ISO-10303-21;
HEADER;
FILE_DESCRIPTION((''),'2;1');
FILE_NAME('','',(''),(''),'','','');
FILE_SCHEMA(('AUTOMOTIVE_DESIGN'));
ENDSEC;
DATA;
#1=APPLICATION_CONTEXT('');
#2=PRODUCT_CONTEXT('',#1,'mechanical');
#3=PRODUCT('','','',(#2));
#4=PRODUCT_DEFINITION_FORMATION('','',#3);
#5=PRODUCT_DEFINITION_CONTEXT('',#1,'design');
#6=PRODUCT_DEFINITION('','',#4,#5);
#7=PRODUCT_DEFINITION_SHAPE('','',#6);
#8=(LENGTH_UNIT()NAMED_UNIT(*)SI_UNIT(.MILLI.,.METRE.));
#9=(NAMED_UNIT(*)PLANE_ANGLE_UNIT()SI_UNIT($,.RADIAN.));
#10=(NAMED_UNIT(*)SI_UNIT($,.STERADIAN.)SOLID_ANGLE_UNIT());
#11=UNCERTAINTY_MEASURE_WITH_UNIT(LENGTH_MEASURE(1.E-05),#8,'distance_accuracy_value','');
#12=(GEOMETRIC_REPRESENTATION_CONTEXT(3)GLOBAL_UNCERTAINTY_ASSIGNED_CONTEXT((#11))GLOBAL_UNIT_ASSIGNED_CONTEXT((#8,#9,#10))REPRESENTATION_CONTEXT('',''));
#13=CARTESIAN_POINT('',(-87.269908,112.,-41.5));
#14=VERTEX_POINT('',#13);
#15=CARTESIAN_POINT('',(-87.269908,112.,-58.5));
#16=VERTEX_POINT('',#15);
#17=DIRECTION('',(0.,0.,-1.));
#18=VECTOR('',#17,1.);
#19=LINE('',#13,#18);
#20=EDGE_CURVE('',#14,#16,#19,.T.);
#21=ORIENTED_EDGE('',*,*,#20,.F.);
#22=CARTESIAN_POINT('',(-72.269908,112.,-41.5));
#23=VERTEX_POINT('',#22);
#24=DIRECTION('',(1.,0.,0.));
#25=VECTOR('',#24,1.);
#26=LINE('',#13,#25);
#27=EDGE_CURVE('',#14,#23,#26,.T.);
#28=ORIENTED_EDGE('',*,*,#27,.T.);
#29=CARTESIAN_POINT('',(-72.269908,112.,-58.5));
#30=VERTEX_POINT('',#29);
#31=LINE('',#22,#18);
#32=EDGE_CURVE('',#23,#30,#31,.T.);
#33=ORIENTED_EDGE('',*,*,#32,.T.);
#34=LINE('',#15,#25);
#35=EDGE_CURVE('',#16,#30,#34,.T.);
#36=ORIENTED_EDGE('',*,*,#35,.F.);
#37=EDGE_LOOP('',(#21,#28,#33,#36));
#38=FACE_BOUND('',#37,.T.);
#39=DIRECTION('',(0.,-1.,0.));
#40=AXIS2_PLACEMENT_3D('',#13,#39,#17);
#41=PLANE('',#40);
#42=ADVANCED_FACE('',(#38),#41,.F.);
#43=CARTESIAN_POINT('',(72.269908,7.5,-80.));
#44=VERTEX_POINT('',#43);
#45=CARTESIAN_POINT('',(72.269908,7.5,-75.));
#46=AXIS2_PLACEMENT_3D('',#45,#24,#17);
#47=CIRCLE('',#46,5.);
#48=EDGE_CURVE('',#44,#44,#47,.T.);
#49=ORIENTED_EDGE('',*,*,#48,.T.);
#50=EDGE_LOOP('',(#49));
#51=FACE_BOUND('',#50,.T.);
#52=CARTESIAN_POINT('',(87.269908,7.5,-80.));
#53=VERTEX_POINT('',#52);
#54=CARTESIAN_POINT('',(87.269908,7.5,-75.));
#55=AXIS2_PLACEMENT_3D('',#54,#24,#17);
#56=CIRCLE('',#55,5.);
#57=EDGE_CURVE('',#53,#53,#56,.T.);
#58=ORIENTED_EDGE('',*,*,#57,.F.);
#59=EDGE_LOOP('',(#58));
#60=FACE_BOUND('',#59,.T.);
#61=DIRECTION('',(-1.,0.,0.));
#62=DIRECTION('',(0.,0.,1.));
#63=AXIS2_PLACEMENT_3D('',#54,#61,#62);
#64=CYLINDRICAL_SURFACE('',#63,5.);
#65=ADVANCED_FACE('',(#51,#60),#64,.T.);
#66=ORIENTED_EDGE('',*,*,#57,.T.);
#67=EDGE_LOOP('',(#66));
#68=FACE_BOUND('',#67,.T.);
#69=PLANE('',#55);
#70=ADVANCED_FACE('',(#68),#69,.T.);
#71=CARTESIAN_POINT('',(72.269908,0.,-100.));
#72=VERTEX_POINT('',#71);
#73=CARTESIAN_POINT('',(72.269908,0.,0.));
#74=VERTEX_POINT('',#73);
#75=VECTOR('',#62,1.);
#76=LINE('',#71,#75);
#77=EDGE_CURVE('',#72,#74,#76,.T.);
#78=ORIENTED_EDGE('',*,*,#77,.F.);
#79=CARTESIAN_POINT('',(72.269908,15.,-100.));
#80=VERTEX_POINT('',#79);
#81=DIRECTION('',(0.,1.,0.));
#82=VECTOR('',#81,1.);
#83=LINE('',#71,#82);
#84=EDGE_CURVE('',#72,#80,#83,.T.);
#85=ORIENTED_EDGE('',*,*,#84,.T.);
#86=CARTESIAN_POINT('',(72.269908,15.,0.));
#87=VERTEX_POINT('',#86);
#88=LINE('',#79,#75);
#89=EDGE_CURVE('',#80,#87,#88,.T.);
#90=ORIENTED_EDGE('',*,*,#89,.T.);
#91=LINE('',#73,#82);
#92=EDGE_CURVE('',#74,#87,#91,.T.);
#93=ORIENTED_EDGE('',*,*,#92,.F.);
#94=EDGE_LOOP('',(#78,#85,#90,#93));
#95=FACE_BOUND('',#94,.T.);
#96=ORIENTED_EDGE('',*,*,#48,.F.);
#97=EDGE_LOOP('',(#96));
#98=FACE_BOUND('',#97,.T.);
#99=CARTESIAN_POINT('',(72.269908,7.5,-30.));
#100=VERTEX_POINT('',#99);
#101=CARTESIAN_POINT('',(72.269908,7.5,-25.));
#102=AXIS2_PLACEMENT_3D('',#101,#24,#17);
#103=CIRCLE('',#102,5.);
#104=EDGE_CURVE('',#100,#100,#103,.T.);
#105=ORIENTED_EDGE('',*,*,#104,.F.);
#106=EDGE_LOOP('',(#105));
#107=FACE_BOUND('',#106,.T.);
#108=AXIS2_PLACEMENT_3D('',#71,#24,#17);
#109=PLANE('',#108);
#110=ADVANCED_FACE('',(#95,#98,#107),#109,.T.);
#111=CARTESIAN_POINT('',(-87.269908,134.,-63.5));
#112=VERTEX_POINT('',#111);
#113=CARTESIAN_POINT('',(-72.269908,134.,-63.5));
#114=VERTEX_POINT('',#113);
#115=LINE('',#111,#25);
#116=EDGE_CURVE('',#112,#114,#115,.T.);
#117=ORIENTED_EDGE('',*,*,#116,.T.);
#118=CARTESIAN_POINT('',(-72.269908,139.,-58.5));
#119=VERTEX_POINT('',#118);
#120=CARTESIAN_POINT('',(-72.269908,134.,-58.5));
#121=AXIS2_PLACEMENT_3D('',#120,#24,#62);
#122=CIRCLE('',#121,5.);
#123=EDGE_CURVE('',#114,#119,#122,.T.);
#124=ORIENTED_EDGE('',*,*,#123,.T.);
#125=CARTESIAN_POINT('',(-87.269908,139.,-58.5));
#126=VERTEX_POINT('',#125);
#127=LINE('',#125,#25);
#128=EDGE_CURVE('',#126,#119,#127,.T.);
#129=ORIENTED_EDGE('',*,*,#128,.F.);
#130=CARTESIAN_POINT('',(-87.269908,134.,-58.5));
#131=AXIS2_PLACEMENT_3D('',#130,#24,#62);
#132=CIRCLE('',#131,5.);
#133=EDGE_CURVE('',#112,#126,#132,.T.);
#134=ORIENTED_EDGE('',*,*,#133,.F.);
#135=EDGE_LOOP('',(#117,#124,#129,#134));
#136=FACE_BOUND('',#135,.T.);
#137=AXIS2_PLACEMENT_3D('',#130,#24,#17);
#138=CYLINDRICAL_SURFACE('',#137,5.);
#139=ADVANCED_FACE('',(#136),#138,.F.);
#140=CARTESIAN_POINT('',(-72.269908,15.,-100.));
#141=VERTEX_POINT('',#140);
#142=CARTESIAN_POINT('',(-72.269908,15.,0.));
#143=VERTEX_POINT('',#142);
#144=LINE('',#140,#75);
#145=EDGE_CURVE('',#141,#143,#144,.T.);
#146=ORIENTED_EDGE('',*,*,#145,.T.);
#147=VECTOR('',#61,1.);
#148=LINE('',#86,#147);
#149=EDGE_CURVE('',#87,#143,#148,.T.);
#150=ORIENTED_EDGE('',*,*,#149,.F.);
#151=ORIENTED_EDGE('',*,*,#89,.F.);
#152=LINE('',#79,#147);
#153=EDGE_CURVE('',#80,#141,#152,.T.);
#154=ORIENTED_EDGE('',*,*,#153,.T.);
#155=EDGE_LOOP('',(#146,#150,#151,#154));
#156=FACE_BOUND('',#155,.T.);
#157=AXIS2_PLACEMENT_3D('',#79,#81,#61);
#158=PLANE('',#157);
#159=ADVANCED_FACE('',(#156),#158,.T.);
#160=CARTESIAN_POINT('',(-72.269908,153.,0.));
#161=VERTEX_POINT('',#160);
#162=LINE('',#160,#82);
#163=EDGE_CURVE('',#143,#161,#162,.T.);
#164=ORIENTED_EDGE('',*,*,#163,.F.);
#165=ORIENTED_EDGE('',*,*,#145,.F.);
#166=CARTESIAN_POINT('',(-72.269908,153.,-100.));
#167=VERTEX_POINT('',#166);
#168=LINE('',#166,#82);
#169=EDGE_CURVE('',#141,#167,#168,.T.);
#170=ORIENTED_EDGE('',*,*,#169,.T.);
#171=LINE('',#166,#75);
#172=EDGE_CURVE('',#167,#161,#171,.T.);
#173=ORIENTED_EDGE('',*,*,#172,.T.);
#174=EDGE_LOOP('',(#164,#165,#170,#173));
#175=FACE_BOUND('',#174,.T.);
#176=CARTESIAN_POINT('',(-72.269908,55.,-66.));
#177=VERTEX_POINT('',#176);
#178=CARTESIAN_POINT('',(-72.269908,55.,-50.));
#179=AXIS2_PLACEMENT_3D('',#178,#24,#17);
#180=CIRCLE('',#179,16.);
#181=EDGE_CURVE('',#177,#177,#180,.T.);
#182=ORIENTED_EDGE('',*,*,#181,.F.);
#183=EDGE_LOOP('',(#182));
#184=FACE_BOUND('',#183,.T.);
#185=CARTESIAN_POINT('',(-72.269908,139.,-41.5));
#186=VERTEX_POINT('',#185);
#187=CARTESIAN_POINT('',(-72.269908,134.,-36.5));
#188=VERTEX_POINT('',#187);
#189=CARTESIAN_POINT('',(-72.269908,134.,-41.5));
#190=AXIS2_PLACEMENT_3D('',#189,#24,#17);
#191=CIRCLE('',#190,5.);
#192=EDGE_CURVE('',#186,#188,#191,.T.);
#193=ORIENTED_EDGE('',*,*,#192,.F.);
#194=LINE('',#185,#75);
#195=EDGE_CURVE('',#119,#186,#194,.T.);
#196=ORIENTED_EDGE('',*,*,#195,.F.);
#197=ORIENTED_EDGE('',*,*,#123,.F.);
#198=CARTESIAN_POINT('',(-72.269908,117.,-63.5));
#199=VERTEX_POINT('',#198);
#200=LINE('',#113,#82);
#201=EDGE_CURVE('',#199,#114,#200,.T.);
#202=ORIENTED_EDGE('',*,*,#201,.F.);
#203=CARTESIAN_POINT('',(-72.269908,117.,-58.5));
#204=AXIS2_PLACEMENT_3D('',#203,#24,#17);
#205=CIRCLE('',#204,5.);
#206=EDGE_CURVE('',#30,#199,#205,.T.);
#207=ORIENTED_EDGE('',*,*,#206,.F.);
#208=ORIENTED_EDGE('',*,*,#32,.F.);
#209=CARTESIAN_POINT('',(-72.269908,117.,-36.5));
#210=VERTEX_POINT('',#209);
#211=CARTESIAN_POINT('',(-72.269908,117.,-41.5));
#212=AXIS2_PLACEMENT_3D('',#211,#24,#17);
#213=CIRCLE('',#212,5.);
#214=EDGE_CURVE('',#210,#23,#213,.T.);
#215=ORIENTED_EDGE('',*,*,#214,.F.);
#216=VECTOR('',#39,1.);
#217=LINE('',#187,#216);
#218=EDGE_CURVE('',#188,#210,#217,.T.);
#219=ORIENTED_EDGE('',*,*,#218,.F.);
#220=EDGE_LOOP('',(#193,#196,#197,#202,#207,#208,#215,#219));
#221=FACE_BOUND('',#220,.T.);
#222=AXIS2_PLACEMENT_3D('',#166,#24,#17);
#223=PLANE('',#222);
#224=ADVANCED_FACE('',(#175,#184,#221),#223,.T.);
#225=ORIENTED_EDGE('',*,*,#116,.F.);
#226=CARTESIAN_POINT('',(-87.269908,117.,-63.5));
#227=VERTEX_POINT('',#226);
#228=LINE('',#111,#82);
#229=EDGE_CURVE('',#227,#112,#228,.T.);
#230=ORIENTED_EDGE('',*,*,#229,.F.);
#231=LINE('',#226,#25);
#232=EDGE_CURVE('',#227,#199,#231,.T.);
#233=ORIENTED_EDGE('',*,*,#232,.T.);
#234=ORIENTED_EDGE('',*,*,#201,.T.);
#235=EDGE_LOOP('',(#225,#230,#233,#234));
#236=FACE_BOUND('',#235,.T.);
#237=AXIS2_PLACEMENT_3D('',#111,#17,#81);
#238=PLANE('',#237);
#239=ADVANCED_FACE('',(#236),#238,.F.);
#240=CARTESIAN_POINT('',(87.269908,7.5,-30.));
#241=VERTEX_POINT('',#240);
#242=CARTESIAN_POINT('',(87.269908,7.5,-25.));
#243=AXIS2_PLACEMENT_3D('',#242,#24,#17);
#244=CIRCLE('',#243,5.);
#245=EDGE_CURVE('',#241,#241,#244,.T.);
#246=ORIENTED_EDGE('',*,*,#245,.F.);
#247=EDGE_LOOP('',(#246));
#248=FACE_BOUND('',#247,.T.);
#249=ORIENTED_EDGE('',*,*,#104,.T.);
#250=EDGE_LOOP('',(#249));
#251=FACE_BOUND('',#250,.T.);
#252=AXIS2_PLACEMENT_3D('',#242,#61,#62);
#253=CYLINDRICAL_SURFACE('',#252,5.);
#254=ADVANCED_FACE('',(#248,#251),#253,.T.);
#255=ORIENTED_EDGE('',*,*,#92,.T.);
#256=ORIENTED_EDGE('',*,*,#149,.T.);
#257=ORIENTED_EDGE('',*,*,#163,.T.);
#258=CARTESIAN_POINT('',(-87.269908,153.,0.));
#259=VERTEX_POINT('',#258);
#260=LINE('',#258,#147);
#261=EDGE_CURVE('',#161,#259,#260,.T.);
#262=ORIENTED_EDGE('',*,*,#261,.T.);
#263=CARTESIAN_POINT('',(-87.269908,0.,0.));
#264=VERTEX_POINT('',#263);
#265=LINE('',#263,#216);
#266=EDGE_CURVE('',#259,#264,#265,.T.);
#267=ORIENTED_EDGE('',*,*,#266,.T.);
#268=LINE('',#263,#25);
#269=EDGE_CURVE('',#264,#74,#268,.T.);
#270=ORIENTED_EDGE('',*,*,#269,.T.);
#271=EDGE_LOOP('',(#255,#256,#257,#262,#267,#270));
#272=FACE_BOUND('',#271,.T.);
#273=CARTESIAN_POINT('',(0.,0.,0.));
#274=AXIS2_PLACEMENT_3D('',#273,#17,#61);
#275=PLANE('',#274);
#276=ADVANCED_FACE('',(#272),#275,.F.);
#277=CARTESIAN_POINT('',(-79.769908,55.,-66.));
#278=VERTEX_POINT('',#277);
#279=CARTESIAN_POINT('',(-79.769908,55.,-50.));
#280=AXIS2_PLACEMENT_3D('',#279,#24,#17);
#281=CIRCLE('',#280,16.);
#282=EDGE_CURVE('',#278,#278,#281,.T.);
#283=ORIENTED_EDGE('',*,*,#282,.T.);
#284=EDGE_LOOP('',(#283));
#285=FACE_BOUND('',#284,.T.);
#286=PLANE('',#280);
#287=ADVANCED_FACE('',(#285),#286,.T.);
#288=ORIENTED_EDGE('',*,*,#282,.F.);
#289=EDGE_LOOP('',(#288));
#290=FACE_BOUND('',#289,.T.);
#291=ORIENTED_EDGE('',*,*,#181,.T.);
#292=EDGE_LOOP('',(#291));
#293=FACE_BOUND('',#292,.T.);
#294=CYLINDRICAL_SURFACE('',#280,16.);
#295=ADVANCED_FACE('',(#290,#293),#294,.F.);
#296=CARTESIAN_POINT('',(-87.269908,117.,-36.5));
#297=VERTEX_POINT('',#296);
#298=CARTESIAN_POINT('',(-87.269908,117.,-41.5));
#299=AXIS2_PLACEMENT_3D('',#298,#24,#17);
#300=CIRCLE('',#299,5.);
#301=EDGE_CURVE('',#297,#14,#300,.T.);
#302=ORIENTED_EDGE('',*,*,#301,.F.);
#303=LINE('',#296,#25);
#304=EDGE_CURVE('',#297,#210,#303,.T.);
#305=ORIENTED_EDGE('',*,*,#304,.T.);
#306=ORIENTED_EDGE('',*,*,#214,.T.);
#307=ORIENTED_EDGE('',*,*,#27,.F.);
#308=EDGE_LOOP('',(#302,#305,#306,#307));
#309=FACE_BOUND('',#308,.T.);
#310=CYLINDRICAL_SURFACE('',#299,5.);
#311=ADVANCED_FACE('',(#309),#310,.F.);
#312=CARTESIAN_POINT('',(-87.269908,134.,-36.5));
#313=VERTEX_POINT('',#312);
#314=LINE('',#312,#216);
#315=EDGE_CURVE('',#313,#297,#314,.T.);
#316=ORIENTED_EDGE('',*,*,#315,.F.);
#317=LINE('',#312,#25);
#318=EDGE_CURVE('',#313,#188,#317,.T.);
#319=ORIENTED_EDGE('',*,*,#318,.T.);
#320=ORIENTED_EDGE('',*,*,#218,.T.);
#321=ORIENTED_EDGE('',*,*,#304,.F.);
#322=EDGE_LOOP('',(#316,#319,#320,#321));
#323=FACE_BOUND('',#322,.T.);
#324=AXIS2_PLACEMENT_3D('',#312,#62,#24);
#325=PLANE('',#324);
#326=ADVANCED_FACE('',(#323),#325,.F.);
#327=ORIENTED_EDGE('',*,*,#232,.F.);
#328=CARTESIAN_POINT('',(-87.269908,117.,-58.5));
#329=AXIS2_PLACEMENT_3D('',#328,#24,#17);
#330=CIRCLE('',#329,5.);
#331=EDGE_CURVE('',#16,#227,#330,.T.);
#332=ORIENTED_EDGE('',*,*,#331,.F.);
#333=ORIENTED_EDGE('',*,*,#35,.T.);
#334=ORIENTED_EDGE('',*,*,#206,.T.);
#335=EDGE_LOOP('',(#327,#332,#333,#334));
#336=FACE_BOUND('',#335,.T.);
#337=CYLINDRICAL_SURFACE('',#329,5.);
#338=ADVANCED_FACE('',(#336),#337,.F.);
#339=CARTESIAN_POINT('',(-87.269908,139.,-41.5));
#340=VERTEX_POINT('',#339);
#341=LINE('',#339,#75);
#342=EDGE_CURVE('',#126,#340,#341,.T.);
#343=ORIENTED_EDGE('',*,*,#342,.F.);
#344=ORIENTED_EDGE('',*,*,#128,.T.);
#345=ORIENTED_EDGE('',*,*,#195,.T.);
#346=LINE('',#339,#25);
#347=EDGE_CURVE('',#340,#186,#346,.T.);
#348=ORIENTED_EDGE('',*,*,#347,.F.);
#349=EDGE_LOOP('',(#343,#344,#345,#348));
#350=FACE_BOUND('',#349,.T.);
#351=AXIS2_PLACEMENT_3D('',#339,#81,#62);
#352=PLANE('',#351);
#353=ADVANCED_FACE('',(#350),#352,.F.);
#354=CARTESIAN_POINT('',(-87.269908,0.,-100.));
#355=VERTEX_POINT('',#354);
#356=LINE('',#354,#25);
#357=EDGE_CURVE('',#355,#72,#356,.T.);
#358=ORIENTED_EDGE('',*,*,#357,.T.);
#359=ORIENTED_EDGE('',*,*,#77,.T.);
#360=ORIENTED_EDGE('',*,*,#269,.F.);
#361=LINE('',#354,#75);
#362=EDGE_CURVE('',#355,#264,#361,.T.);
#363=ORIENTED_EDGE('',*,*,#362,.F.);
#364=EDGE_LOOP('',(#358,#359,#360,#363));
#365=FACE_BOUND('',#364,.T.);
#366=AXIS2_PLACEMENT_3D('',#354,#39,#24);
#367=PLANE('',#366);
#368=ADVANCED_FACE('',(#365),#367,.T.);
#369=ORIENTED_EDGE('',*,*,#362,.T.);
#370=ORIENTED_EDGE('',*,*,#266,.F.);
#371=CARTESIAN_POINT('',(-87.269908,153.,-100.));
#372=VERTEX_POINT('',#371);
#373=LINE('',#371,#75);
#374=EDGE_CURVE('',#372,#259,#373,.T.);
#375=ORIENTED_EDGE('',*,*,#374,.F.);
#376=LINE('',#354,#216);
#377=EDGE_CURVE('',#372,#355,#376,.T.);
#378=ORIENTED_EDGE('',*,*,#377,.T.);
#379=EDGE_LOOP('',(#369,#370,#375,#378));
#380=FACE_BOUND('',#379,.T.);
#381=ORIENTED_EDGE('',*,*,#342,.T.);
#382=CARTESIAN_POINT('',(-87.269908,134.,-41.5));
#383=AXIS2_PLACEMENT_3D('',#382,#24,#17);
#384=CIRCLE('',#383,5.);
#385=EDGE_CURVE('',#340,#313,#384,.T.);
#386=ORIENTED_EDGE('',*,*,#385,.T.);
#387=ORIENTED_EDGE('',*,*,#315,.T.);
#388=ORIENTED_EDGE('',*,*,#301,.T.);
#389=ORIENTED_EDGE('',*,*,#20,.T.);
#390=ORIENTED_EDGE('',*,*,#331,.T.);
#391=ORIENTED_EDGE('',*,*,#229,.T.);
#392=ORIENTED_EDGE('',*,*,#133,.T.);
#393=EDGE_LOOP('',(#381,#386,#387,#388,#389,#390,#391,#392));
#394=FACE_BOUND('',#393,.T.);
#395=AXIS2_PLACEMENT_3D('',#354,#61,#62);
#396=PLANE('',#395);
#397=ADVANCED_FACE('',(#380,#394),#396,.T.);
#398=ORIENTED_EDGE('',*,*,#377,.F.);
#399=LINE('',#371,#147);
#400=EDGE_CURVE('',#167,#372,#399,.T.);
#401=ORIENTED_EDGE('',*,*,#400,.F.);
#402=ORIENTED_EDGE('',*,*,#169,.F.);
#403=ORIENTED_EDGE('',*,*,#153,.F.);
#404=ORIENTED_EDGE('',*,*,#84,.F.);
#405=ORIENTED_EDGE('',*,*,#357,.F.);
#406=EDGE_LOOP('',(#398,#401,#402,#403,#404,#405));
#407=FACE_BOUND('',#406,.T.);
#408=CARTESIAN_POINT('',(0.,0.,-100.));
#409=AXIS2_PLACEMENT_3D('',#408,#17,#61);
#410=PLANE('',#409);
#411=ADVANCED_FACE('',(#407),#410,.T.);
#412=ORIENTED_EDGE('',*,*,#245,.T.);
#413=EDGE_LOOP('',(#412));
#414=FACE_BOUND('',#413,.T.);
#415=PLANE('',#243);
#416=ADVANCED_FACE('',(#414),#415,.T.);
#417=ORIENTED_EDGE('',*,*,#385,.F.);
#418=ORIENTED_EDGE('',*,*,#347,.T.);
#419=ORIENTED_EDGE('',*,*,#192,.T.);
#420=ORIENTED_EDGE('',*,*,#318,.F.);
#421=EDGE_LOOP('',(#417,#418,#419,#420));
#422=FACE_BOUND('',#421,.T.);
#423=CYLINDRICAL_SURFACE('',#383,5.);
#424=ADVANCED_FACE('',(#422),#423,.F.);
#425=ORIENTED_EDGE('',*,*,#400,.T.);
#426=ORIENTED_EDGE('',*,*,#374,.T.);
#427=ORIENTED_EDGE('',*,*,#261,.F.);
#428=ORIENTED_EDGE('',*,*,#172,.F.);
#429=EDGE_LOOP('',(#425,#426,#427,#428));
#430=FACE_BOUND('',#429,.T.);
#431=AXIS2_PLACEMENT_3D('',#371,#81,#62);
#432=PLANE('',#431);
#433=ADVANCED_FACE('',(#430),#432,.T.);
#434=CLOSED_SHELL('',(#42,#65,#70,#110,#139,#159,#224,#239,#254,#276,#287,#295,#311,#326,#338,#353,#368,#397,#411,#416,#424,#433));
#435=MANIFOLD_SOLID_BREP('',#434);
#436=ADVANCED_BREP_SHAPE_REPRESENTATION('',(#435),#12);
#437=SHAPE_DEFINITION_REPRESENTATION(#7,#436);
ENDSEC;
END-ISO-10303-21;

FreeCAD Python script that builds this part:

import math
import FreeCAD as App
import Part
import Sketcher
from FreeCAD import Vector

doc = App.newDocument("Part")
body = doc.addObject("PartDesign::Body", "Body")

sketch1 = body.newObject("Sketcher::SketchObject", "Sketch")
sketch1.AttachmentSupport = (doc.getObject("XY_Plane"), [""])
sketch1.MapMode = "FlatFace"
sketch1.addGeometry([
    Part.LineSegment(Vector(-87, 0, 0), Vector(72, 0, 0)),
    Part.LineSegment(Vector(72, 0, 0), Vector(72, 15, 0)),
    Part.LineSegment(Vector(72, 15, 0), Vector(-72, 15, 0)),
    Part.LineSegment(Vector(-72, 15, 0), Vector(-72, 153, 0)),
    Part.LineSegment(Vector(-72, 153, 0), Vector(-87, 153, 0)),
    Part.LineSegment(Vector(-87, 153, 0), Vector(-87, 0, 0)),
], False)
sketch1.addConstraint([
    Sketcher.Constraint("Coincident", 0, 2, 1, 1),
    Sketcher.Constraint("Coincident", 1, 2, 2, 1),
    Sketcher.Constraint("Coincident", 2, 2, 3, 1),
    Sketcher.Constraint("Coincident", 3, 2, 4, 1),
    Sketcher.Constraint("Coincident", 4, 2, 5, 1),
    Sketcher.Constraint("Coincident", 5, 2, 0, 1),
    Sketcher.Constraint("Horizontal", 0),
    Sketcher.Constraint("Vertical", 1),
    Sketcher.Constraint("Horizontal", 2),
    Sketcher.Constraint("Vertical", 3),
    Sketcher.Constraint("Horizontal", 4),
    Sketcher.Constraint("Vertical", 5),
    Sketcher.Constraint("PointOnObject", 0, 2, -1),
    Sketcher.Constraint("Equal", 4, 1),
    Sketcher.Constraint("DistanceX", 4, 2, 4, 1, 15.0),
    Sketcher.Constraint("DistanceY", 3, 1, 3, 2, 138.0),
    Sketcher.Constraint("DistanceX", 0, 1, 0, 2, 159.539816),
    Sketcher.Constraint("DistanceX", -1, 1, 0, 2, 72.269908),
])
pad1 = body.newObject("PartDesign::Pad", "Pad")
pad1.Profile = sketch1
pad1.Length = 100
pad1.Reversed = True

sketch2 = body.newObject("Sketcher::SketchObject", "Sketch001")
sketch2.AttachmentSupport = (doc.getObject("YZ_Plane"), [""])
sketch2.MapMode = "FlatFace"
sketch2.AttachmentOffset = App.Placement(Vector(0, 0, 72.269908), App.Rotation())
sketch2.addGeometry([
    Part.Circle(Vector(8, -25, 0), Vector(0, 0, 1), 5),
    Part.Circle(Vector(8, -75, 0), Vector(0, 0, 1), 5),
], False)
sketch2.addConstraint([
    Sketcher.Constraint("Equal", 0, 1),
    Sketcher.Constraint("Vertical", 0, 3, 1, 3),
    Sketcher.Constraint("Diameter", 0, 10.0),
    Sketcher.Constraint("DistanceY", 0, 3, -1, 1, 25.0),
    Sketcher.Constraint("DistanceY", 1, 3, -1, 1, 75.0),
    Sketcher.Constraint("DistanceX", -1, 1, 0, 3, 7.5),
])
pad2 = body.newObject("PartDesign::Pad", "Pad001")
pad2.Profile = sketch2
pad2.Length = 15

sketch3 = body.newObject("Sketcher::SketchObject", "Sketch002")
sketch3.AttachmentSupport = (doc.getObject("YZ_Plane"), [""])
sketch3.MapMode = "FlatFace"
sketch3.AttachmentOffset = App.Placement(Vector(0, 0, -72.269908), App.Rotation())
sketch3.addGeometry(Part.Circle(Vector(55, -50, 0), Vector(0, 0, 1), 16), False)
sketch3.addConstraint([
    Sketcher.Constraint("Diameter", 0, 32.0),
    Sketcher.Constraint("DistanceX", -1, 1, 0, 3, 55.0),
    Sketcher.Constraint("DistanceY", 0, 3, -1, 1, 50.0),
])
pocket1 = body.newObject("PartDesign::Pocket", "Pocket")
pocket1.Profile = sketch3
pocket1.Length = 7.5

sketch4 = body.newObject("Sketcher::SketchObject", "Sketch003")
sketch4.AttachmentSupport = (doc.getObject("YZ_Plane"), [""])
sketch4.MapMode = "FlatFace"
sketch4.AttachmentOffset = App.Placement(Vector(0, 0, -72.269908), App.Rotation())
sketch4.addGeometry([
    Part.LineSegment(Vector(139, -58, 0), Vector(139, -42, 0)),
    Part.ArcOfCircle(Part.Circle(Vector(134, -42, 0), Vector(0, 0, 1), 5), math.radians(0), math.radians(90)),
    Part.LineSegment(Vector(134, -36, 0), Vector(117, -36, 0)),
    Part.ArcOfCircle(Part.Circle(Vector(117, -42, 0), Vector(0, 0, 1), 5), math.radians(90), math.radians(180)),
    Part.LineSegment(Vector(112, -42, 0), Vector(112, -58, 0)),
    Part.ArcOfCircle(Part.Circle(Vector(117, -58, 0), Vector(0, 0, 1), 5), math.radians(180), math.radians(270)),
    Part.LineSegment(Vector(117, -64, 0), Vector(134, -64, 0)),
    Part.ArcOfCircle(Part.Circle(Vector(134, -58, 0), Vector(0, 0, 1), 5), math.radians(-90), math.radians(0)),
], False)
sketch4.addConstraint([
    Sketcher.Constraint("Tangent", 0, 2, 1, 1),
    Sketcher.Constraint("Tangent", 1, 2, 2, 1),
    Sketcher.Constraint("Tangent", 2, 2, 3, 1),
    Sketcher.Constraint("Tangent", 3, 2, 4, 1),
    Sketcher.Constraint("Tangent", 4, 2, 5, 1),
    Sketcher.Constraint("Tangent", 5, 2, 6, 1),
    Sketcher.Constraint("Tangent", 6, 2, 7, 1),
    Sketcher.Constraint("Tangent", 7, 2, 0, 1),
    Sketcher.Constraint("Vertical", 0),
    Sketcher.Constraint("Horizontal", 2),
    Sketcher.Constraint("Vertical", 4),
    Sketcher.Constraint("Horizontal", 6),
    Sketcher.Constraint("Equal", 1, 3),
    Sketcher.Constraint("Equal", 3, 5),
    Sketcher.Constraint("Equal", 5, 7),
    Sketcher.Constraint("Equal", 6, 0),
    Sketcher.Constraint("Radius", 1, 5.0),
    Sketcher.Constraint("DistanceX", 2, 2, 2, 1, 17.0),
    Sketcher.Constraint("DistanceX", -1, 1, 1, 3, 134.0),
    Sketcher.Constraint("DistanceY", 1, 3, -1, 1, 41.5),
])
pocket2 = body.newObject("PartDesign::Pocket", "Pocket001")
pocket2.Profile = sketch4
pocket2.Type = "ThroughAll"

doc.recompute()
